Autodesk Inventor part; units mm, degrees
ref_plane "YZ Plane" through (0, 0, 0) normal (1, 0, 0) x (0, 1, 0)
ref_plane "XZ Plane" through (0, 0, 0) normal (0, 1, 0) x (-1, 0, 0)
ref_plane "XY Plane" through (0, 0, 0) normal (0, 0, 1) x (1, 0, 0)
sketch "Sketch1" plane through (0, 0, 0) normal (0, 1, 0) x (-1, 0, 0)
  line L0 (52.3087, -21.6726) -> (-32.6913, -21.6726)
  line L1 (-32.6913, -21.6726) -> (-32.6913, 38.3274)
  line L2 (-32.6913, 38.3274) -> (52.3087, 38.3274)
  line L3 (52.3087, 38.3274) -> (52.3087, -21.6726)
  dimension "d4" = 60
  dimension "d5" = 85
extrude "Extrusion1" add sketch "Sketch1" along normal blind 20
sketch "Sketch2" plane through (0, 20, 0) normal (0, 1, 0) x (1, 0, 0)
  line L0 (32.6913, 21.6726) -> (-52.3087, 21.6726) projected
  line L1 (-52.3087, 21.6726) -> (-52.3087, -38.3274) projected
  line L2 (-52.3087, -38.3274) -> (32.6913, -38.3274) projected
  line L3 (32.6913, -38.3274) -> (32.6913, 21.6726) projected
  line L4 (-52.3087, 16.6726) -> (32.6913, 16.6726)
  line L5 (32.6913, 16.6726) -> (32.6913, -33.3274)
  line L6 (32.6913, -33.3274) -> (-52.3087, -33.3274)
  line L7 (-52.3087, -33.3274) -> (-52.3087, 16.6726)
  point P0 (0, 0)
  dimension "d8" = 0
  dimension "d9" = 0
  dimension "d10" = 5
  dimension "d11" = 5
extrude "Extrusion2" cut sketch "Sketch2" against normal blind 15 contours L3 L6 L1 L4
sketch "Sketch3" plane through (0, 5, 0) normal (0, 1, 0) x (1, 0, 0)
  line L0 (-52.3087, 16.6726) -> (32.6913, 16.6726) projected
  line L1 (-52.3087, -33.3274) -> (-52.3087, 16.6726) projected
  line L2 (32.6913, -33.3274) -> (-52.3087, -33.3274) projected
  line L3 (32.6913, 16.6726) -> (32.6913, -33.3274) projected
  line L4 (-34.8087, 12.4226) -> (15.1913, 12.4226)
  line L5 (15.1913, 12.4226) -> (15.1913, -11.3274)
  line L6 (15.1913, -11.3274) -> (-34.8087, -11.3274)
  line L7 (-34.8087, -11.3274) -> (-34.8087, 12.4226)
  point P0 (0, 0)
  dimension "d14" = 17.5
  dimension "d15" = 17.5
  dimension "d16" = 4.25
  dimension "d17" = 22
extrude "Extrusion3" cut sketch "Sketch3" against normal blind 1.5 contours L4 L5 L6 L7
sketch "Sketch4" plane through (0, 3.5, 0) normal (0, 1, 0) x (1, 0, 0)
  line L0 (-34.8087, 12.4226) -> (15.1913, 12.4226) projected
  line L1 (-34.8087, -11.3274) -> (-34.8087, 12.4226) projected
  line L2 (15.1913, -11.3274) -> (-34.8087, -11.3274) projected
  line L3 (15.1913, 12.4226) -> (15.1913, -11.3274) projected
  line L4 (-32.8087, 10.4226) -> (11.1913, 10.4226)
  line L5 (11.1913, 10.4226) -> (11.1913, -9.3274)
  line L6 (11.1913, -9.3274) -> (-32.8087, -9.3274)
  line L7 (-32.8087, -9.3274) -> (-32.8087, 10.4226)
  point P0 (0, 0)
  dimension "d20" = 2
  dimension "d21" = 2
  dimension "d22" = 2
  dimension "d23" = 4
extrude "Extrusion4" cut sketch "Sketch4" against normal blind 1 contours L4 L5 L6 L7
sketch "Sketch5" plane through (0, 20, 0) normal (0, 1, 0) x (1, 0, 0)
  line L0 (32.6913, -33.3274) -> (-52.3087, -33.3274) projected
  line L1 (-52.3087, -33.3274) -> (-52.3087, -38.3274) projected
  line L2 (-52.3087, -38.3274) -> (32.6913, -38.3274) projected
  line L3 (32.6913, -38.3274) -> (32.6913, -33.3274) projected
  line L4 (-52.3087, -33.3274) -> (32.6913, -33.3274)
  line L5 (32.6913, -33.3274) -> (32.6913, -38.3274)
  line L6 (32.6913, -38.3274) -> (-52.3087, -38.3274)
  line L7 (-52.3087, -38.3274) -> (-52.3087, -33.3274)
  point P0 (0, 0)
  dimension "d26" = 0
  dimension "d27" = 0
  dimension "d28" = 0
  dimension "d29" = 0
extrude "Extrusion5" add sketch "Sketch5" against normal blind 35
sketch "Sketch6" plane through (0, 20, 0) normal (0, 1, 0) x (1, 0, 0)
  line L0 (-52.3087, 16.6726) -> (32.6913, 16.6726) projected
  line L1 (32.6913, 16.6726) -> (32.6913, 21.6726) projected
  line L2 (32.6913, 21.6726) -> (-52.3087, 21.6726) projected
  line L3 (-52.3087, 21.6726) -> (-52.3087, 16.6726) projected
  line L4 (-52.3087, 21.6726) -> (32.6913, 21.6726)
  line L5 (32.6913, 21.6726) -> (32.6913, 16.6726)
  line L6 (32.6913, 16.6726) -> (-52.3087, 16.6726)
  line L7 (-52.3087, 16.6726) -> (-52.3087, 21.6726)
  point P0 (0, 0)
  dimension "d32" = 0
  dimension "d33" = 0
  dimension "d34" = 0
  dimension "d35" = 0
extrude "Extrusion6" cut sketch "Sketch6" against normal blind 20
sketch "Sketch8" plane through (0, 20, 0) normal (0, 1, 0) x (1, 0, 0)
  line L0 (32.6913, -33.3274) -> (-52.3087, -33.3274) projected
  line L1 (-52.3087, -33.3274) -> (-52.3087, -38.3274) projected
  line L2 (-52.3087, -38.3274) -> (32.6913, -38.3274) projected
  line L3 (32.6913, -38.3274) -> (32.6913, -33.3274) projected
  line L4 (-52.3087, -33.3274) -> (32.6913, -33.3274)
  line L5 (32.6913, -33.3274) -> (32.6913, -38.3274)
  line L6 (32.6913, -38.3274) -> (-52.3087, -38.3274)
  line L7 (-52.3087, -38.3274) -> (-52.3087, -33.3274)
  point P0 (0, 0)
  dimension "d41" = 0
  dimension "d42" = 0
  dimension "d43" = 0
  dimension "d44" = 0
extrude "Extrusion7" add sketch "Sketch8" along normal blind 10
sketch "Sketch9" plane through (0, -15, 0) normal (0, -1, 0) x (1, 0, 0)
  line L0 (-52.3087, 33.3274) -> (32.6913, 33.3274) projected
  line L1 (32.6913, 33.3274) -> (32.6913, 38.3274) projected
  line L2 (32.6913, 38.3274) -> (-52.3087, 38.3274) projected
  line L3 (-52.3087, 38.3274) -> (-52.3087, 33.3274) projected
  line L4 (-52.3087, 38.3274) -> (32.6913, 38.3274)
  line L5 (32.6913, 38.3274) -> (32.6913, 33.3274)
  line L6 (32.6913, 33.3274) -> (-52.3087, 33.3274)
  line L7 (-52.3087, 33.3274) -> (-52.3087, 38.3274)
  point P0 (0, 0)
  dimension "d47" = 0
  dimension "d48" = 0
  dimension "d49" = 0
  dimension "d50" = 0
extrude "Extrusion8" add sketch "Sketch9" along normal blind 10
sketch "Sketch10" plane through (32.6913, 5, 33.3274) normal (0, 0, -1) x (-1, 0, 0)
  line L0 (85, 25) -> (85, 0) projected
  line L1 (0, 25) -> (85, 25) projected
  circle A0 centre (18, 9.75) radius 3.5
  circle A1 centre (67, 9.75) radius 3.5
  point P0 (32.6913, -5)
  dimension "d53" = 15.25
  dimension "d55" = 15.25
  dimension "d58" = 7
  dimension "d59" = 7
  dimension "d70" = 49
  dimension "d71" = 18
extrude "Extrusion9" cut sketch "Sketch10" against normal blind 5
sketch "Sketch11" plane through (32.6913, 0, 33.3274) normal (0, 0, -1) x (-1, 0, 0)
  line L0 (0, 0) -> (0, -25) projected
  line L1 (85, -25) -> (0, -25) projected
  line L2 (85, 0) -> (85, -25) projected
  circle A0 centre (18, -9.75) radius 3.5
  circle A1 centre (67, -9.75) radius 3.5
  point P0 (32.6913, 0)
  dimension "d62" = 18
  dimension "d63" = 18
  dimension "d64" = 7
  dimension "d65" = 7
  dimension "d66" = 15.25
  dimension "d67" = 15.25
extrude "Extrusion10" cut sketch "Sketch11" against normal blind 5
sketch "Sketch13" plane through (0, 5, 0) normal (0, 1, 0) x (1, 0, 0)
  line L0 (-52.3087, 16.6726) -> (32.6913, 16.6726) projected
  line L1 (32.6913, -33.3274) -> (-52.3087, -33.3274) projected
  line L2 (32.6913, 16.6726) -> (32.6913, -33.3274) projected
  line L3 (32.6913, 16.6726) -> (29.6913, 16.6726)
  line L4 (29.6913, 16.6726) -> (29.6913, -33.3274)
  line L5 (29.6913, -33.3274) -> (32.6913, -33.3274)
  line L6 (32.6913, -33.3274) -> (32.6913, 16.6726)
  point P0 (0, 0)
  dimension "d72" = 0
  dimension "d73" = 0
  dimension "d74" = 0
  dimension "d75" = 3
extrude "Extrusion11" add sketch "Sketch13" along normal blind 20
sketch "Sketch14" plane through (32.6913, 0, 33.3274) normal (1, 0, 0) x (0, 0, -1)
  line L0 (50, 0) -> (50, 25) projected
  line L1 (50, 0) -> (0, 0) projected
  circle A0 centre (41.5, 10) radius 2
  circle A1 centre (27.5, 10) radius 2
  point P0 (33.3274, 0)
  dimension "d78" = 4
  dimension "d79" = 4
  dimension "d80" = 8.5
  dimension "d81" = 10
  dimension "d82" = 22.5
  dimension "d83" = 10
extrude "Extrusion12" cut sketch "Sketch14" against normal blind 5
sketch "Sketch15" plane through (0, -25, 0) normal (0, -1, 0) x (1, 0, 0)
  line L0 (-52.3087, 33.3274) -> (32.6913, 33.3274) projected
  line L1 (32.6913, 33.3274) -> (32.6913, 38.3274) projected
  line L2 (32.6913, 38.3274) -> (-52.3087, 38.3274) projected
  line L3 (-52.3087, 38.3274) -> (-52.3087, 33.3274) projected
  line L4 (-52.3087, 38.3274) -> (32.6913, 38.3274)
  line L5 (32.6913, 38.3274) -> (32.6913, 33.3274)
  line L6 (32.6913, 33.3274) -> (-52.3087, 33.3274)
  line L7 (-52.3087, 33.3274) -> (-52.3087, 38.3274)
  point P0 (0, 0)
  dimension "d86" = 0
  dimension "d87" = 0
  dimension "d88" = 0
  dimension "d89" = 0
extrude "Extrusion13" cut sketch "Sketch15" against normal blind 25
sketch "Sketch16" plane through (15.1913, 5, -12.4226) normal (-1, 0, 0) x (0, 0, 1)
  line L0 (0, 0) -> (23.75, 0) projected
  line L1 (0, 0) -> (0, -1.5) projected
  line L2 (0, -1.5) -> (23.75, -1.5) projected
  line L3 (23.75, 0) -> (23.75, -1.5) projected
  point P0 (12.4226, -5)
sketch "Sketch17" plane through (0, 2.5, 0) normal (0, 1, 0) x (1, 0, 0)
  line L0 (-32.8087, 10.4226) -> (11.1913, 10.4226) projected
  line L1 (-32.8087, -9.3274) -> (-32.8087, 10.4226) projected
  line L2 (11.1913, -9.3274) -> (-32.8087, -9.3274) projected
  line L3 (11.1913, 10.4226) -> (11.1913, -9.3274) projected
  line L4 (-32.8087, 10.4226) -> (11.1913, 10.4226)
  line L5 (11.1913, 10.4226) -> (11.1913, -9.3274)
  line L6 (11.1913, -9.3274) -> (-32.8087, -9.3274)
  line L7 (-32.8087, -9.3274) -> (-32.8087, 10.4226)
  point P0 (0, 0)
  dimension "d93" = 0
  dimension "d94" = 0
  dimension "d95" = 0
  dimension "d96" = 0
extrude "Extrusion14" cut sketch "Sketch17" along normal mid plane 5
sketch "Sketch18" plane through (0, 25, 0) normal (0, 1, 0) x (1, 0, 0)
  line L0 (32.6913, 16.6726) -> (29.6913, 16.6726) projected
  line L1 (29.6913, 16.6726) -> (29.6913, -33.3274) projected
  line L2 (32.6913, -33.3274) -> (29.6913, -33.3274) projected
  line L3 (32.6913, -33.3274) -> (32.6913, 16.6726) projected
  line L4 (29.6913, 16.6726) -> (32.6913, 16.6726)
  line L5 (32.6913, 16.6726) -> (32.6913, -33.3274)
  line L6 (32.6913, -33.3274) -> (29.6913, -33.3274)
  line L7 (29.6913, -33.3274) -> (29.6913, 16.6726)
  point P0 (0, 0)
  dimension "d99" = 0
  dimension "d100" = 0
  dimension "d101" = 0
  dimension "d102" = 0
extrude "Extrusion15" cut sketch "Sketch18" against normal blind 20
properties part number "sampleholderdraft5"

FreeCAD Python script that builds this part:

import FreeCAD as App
import Part
import Sketcher

V = App.Vector


def add_polygon(sketch, points):
    """Adds a closed chain of lines whose ends are joined by coincident constraints."""
    first, n = sketch.GeometryCount, len(points)
    for a, b in zip(points, points[1:] + points[:1]):
        sketch.addGeometry(Part.LineSegment(App.Vector(*a, 0), App.Vector(*b, 0)), False)
    for i in range(n):
        sketch.addConstraint(Sketcher.Constraint("Coincident", first + i, 2, first + (i + 1) % n, 1))

doc = App.newDocument("Part")
body = doc.addObject("PartDesign::Body", "Body")

# Sketch on XZ plane
sketch1 = body.newObject("Sketcher::SketchObject", "Sketch")
sketch1.AttachmentSupport = (doc.getObject("XZ_Plane"), [""])
sketch1.MapMode = "FlatFace"
add_polygon(sketch1, [(33, -22), (-52, -22), (-52, 38), (33, 38)])  # lines 0-3
sketch1.addConstraint([
    Sketcher.Constraint("Horizontal", 0),
    Sketcher.Constraint("Vertical", 1),
    Sketcher.Constraint("Horizontal", 2),
    Sketcher.Constraint("Vertical", 3),
    Sketcher.Constraint("DistanceX", 0, 2, 0, 1, 85.0),
    Sketcher.Constraint("DistanceY", 1, 1, 1, 2, 60.0),
    Sketcher.Constraint("DistanceX", 0, 2, -1, 1, 52.3087),
    Sketcher.Constraint("DistanceY", 0, 2, -1, 1, 21.6726),
])
pad1 = body.newObject("PartDesign::Pad", "Pad")
pad1.Profile = sketch1
pad1.Length = 20
pad1.Reversed = True

# Sketch on XZ plane
sketch2 = body.newObject("Sketcher::SketchObject", "Sketch001")
sketch2.AttachmentSupport = (doc.getObject("XZ_Plane"), [""])
sketch2.MapMode = "FlatFace"
sketch2.AttachmentOffset = App.Placement(V(0, 0, -20), App.Rotation())
add_polygon(sketch2, [(33, 33), (33, -17), (-52, -17), (-52, 33)])  # lines 0-3
sketch2.addConstraint([
    Sketcher.Constraint("Vertical", 0),
    Sketcher.Constraint("Horizontal", 1),
    Sketcher.Constraint("Vertical", 2),
    Sketcher.Constraint("Horizontal", 3),
    Sketcher.Constraint("DistanceX", 1, 2, 1, 1, 85.0),
    Sketcher.Constraint("DistanceY", 0, 2, 0, 1, 50.0),
    Sketcher.Constraint("DistanceX", -1, 1, 0, 2, 32.6913),
    Sketcher.Constraint("DistanceY", 0, 2, -1, 1, 16.6726),
])
pocket1 = body.newObject("PartDesign::Pocket", "Pocket")
pocket1.Profile = sketch2
pocket1.Length = 15
pocket1.Reversed = True

# Sketch on XZ plane
sketch3 = body.newObject("Sketcher::SketchObject", "Sketch002")
sketch3.AttachmentSupport = (doc.getObject("XZ_Plane"), [""])
sketch3.MapMode = "FlatFace"
sketch3.AttachmentOffset = App.Placement(V(0, 0, -5), App.Rotation())
add_polygon(sketch3, [(15, -12), (-35, -12), (-35, 11), (15, 11)])  # lines 0-3
sketch3.addConstraint([
    Sketcher.Constraint("Horizontal", 0),
    Sketcher.Constraint("Vertical", 1),
    Sketcher.Constraint("Horizontal", 2),
    Sketcher.Constraint("Vertical", 3),
    Sketcher.Constraint("DistanceX", 0, 2, 0, 1, 50.0),
    Sketcher.Constraint("DistanceY", 1, 1, 1, 2, 23.75),
    Sketcher.Constraint("DistanceX", 0, 2, -1, 1, 34.8087),
    Sketcher.Constraint("DistanceY", 0, 2, -1, 1, 12.4226),
])
pocket2 = body.newObject("PartDesign::Pocket", "Pocket001")
pocket2.Profile = sketch3
pocket2.Length = 1.5
pocket2.Reversed = True

# Sketch on XZ plane
sketch4 = body.newObject("Sketcher::SketchObject", "Sketch003")
sketch4.AttachmentSupport = (doc.getObject("XZ_Plane"), [""])
sketch4.MapMode = "FlatFace"
sketch4.AttachmentOffset = App.Placement(V(0, 0, -3.5), App.Rotation())
add_polygon(sketch4, [(11, -10), (-33, -10), (-33, 9), (11, 9)])  # lines 0-3
sketch4.addConstraint([
    Sketcher.Constraint("Horizontal", 0),
    Sketcher.Constraint("Vertical", 1),
    Sketcher.Constraint("Horizontal", 2),
    Sketcher.Constraint("Vertical", 3),
    Sketcher.Constraint("DistanceX", 0, 2, 0, 1, 44.0),
    Sketcher.Constraint("DistanceY", 1, 1, 1, 2, 19.75),
    Sketcher.Constraint("DistanceX", 0, 2, -1, 1, 32.8087),
    Sketcher.Constraint("DistanceY", 0, 2, -1, 1, 10.4226),
])
pocket3 = body.newObject("PartDesign::Pocket", "Pocket002")
pocket3.Profile = sketch4
pocket3.Length = 1
pocket3.Reversed = True

# Sketch on XZ plane
sketch5 = body.newObject("Sketcher::SketchObject", "Sketch004")
sketch5.AttachmentSupport = (doc.getObject("XZ_Plane"), [""])
sketch5.MapMode = "FlatFace"
sketch5.AttachmentOffset = App.Placement(V(0, 0, -20), App.Rotation())
add_polygon(sketch5, [(33, 38), (33, 33), (-52, 33), (-52, 38)])  # lines 0-3
sketch5.addConstraint([
    Sketcher.Constraint("Vertical", 0),
    Sketcher.Constraint("Horizontal", 1),
    Sketcher.Constraint("Vertical", 2),
    Sketcher.Constraint("Horizontal", 3),
    Sketcher.Constraint("DistanceX", 1, 2, 1, 1, 85.0),
    Sketcher.Constraint("DistanceY", 0, 2, 0, 1, 5.0),
    Sketcher.Constraint("DistanceX", -1, 1, 0, 2, 32.6913),
    Sketcher.Constraint("DistanceY", -1, 1, 0, 2, 33.3274),
])
pad2 = body.newObject("PartDesign::Pad", "Pad001")
pad2.Profile = sketch5
pad2.Length = 35

# Sketch on XZ plane
sketch6 = body.newObject("Sketcher::SketchObject", "Sketch005")
sketch6.AttachmentSupport = (doc.getObject("XZ_Plane"), [""])
sketch6.MapMode = "FlatFace"
sketch6.AttachmentOffset = App.Placement(V(0, 0, -20), App.Rotation())
add_polygon(sketch6, [(-52, -22), (-52, -17), (33, -17), (33, -22)])  # lines 0-3
sketch6.addConstraint([
    Sketcher.Constraint("Vertical", 0),
    Sketcher.Constraint("Horizontal", 1),
    Sketcher.Constraint("Vertical", 2),
    Sketcher.Constraint("Horizontal", 3),
    Sketcher.Constraint("DistanceX", 1, 1, 1, 2, 85.0),
    Sketcher.Constraint("DistanceY", 0, 1, 0, 2, 5.0),
    Sketcher.Constraint("DistanceX", 0, 2, -1, 1, 52.3087),
    Sketcher.Constraint("DistanceY", 0, 2, -1, 1, 16.6726),
])
pocket4 = body.newObject("PartDesign::Pocket", "Pocket003")
pocket4.Profile = sketch6
pocket4.Length = 20
pocket4.Reversed = True

# Sketch on XZ plane
sketch7 = body.newObject("Sketcher::SketchObject", "Sketch006")
sketch7.AttachmentSupport = (doc.getObject("XZ_Plane"), [""])
sketch7.MapMode = "FlatFace"
sketch7.AttachmentOffset = App.Placement(V(0, 0, -20), App.Rotation())
add_polygon(sketch7, [(33, 38), (33, 33), (-52, 33), (-52, 38)])  # lines 0-3
sketch7.addConstraint([
    Sketcher.Constraint("Vertical", 0),
    Sketcher.Constraint("Horizontal", 1),
    Sketcher.Constraint("Vertical", 2),
    Sketcher.Constraint("Horizontal", 3),
    Sketcher.Constraint("DistanceX", 1, 2, 1, 1, 85.0),
    Sketcher.Constraint("DistanceY", 0, 2, 0, 1, 5.0),
    Sketcher.Constraint("DistanceX", -1, 1, 0, 2, 32.6913),
    Sketcher.Constraint("DistanceY", -1, 1, 0, 2, 33.3274),
])
pad3 = body.newObject("PartDesign::Pad", "Pad002")
pad3.Profile = sketch7
pad3.Length = 10
pad3.Reversed = True

# Sketch on XZ plane
sketch8 = body.newObject("Sketcher::SketchObject", "Sketch007")
sketch8.AttachmentSupport = (doc.getObject("XZ_Plane"), [""])
sketch8.MapMode = "FlatFace"
sketch8.AttachmentOffset = App.Placement(V(0, 0, 15), App.Rotation())
add_polygon(sketch8, [(-52, 38), (-52, 33), (33, 33), (33, 38)])  # lines 0-3
sketch8.addConstraint([
    Sketcher.Constraint("Vertical", 0),
    Sketcher.Constraint("Horizontal", 1),
    Sketcher.Constraint("Vertical", 2),
    Sketcher.Constraint("Horizontal", 3),
    Sketcher.Constraint("DistanceX", 1, 1, 1, 2, 85.0),
    Sketcher.Constraint("DistanceY", 0, 2, 0, 1, 5.0),
    Sketcher.Constraint("DistanceX", 0, 2, -1, 1, 52.3087),
    Sketcher.Constraint("DistanceY", -1, 1, 0, 2, 33.3274),
])
pad4 = body.newObject("PartDesign::Pad", "Pad003")
pad4.Profile = sketch8
pad4.Length = 10

# Sketch on XY plane
sketch9 = body.newObject("Sketcher::SketchObject", "Sketch008")
sketch9.AttachmentSupport = (doc.getObject("XY_Plane"), [""])
sketch9.MapMode = "FlatFace"
sketch9.AttachmentOffset = App.Placement(V(0, 0, 33.3274), App.Rotation())
sketch9.addGeometry([
    Part.Circle(V(14.7, 14.8, 0), V(0, 0, 1), 3.5),
    Part.Circle(V(-34.3, 14.8, 0), V(0, 0, 1), 3.5),
], False)
sketch9.addConstraint([
    Sketcher.Constraint("Equal", 0, 1),
    Sketcher.Constraint("Horizontal", 0, 3, 1, 3),
    Sketcher.Constraint("Diameter", 0, 7.0),
    Sketcher.Constraint("DistanceX", 1, 3, 0, 3, 49.0),
    Sketcher.Constraint("DistanceY", -1, 1, 0, 3, 14.75),
    Sketcher.Constraint("DistanceX", -1, 1, 0, 3, 14.6913),
])
pocket5 = body.newObject("PartDesign::Pocket", "Pocket004")
pocket5.Profile = sketch9
pocket5.Length = 5
pocket5.Reversed = True

# Sketch on XY plane
sketch10 = body.newObject("Sketcher::SketchObject", "Sketch009")
sketch10.AttachmentSupport = (doc.getObject("XY_Plane"), [""])
sketch10.MapMode = "FlatFace"
sketch10.AttachmentOffset = App.Placement(V(0, 0, 33.3274), App.Rotation())
sketch10.addGeometry([
    Part.Circle(V(14.7, -9.8, 0), V(0, 0, 1), 3.5),
    Part.Circle(V(-34.3, -9.8, 0), V(0, 0, 1), 3.5),
], False)
sketch10.addConstraint([
    Sketcher.Constraint("Equal", 0, 1),
    Sketcher.Constraint("Horizontal", 0, 3, 1, 3),
    Sketcher.Constraint("Diameter", 0, 7.0),
    Sketcher.Constraint("DistanceX", 1, 3, 0, 3, 49.0),
    Sketcher.Constraint("DistanceY", 0, 3, -1, 1, 9.75),
    Sketcher.Constraint("DistanceX", -1, 1, 0, 3, 14.6913),
])
pocket6 = body.newObject("PartDesign::Pocket", "Pocket005")
pocket6.Profile = sketch10
pocket6.Length = 5
pocket6.Reversed = True

# Sketch on XZ plane
sketch11 = body.newObject("Sketcher::SketchObject", "Sketch010")
sketch11.AttachmentSupport = (doc.getObject("XZ_Plane"), [""])
sketch11.MapMode = "FlatFace"
sketch11.AttachmentOffset = App.Placement(V(0, 0, -5), App.Rotation())
add_polygon(sketch11, [(32.7, -16.7), (29.7, -16.7), (29.7, 33.3), (32.7, 33.3)])  # lines 0-3
sketch11.addConstraint([
    Sketcher.Constraint("Horizontal", 0),
    Sketcher.Constraint("Vertical", 1),
    Sketcher.Constraint("Horizontal", 2),
    Sketcher.Constraint("Vertical", 3),
    Sketcher.Constraint("DistanceX", 0, 2, 0, 1, 3.0),
    Sketcher.Constraint("DistanceY", 1, 1, 1, 2, 50.0),
    Sketcher.Constraint("DistanceX", -1, 1, 0, 2, 29.6913),
    Sketcher.Constraint("DistanceY", 0, 2, -1, 1, 16.6726),
])
pad5 = body.newObject("PartDesign::Pad", "Pad004")
pad5.Profile = sketch11
pad5.Length = 20
pad5.Reversed = True

# Sketch on YZ plane
sketch12 = body.newObject("Sketcher::SketchObject", "Sketch011")
sketch12.AttachmentSupport = (doc.getObject("YZ_Plane"), [""])
sketch12.MapMode = "FlatFace"
sketch12.AttachmentOffset = App.Placement(V(0, 0, 32.6913), App.Rotation())
sketch12.addGeometry([
    Part.Circle(V(10, -8.2, 0), V(0, 0, 1), 2),
    Part.Circle(V(10, 5.8, 0), V(0, 0, 1), 2),
], False)
sketch12.addConstraint([
    Sketcher.Constraint("Equal", 0, 1),
    Sketcher.Constraint("Vertical", 0, 3, 1, 3),
    Sketcher.Constraint("Diameter", 0, 4.0),
    Sketcher.Constraint("DistanceX", -1, 1, 0, 3, 10.0),
    Sketcher.Constraint("DistanceY", 0, 3, 1, 3, 14.0),
    Sketcher.Constraint("DistanceY", 0, 3, -1, 1, 8.1726),
])
pocket7 = body.newObject("PartDesign::Pocket", "Pocket006")
pocket7.Profile = sketch12
pocket7.Length = 5

# Sketch on XZ plane
sketch13 = body.newObject("Sketcher::SketchObject", "Sketch012")
sketch13.AttachmentSupport = (doc.getObject("XZ_Plane"), [""])
sketch13.MapMode = "FlatFace"
sketch13.AttachmentOffset = App.Placement(V(0, 0, 25), App.Rotation())
add_polygon(sketch13, [(-52, 38), (-52, 33), (33, 33), (33, 38)])  # lines 0-3
sketch13.addConstraint([
    Sketcher.Constraint("Vertical", 0),
    Sketcher.Constraint("Horizontal", 1),
    Sketcher.Constraint("Vertical", 2),
    Sketcher.Constraint("Horizontal", 3),
    Sketcher.Constraint("DistanceX", 1, 1, 1, 2, 85.0),
    Sketcher.Constraint("DistanceY", 0, 2, 0, 1, 5.0),
    Sketcher.Constraint("DistanceX", 0, 2, -1, 1, 52.3087),
    Sketcher.Constraint("DistanceY", -1, 1, 0, 2, 33.3274),
])
pocket8 = body.newObject("PartDesign::Pocket", "Pocket007")
pocket8.Profile = sketch13
pocket8.Length = 25

# Sketch on XZ plane
sketch14 = body.newObject("Sketcher::SketchObject", "Sketch013")
sketch14.AttachmentSupport = (doc.getObject("XZ_Plane"), [""])
sketch14.MapMode = "FlatFace"
sketch14.AttachmentOffset = App.Placement(V(0, 0, -2.5), App.Rotation())
add_polygon(sketch14, [(11, -10), (-33, -10), (-33, 9), (11, 9)])  # lines 0-3
sketch14.addConstraint([
    Sketcher.Constraint("Horizontal", 0),
    Sketcher.Constraint("Vertical", 1),
    Sketcher.Constraint("Horizontal", 2),
    Sketcher.Constraint("Vertical", 3),
    Sketcher.Constraint("DistanceX", 0, 2, 0, 1, 44.0),
    Sketcher.Constraint("DistanceY", 1, 1, 1, 2, 19.75),
    Sketcher.Constraint("DistanceX", 0, 2, -1, 1, 32.8087),
    Sketcher.Constraint("DistanceY", 0, 2, -1, 1, 10.4226),
])
pocket9 = body.newObject("PartDesign::Pocket", "Pocket008")
pocket9.Profile = sketch14
pocket9.Length = 5
pocket9.Midplane = True

# Sketch on XZ plane
sketch15 = body.newObject("Sketcher::SketchObject", "Sketch014")
sketch15.AttachmentSupport = (doc.getObject("XZ_Plane"), [""])
sketch15.MapMode = "FlatFace"
sketch15.AttachmentOffset = App.Placement(V(0, 0, -25), App.Rotation())
add_polygon(sketch15, [(32.7, 33.3), (32.7, -16.7), (29.7, -16.7), (29.7, 33.3)])  # lines 0-3
sketch15.addConstraint([
    Sketcher.Constraint("Vertical", 0),
    Sketcher.Constraint("Horizontal", 1),
    Sketcher.Constraint("Vertical", 2),
    Sketcher.Constraint("Horizontal", 3),
    Sketcher.Constraint("DistanceX", 1, 2, 1, 1, 3.0),
    Sketcher.Constraint("DistanceY", 0, 2, 0, 1, 50.0),
    Sketcher.Constraint("DistanceX", -1, 1, 0, 2, 32.6913),
    Sketcher.Constraint("DistanceY", 0, 2, -1, 1, 16.6726),
])
pocket10 = body.newObject("PartDesign::Pocket", "Pocket009")
pocket10.Profile = sketch15
pocket10.Length = 20
pocket10.Reversed = True

doc.recompute()
